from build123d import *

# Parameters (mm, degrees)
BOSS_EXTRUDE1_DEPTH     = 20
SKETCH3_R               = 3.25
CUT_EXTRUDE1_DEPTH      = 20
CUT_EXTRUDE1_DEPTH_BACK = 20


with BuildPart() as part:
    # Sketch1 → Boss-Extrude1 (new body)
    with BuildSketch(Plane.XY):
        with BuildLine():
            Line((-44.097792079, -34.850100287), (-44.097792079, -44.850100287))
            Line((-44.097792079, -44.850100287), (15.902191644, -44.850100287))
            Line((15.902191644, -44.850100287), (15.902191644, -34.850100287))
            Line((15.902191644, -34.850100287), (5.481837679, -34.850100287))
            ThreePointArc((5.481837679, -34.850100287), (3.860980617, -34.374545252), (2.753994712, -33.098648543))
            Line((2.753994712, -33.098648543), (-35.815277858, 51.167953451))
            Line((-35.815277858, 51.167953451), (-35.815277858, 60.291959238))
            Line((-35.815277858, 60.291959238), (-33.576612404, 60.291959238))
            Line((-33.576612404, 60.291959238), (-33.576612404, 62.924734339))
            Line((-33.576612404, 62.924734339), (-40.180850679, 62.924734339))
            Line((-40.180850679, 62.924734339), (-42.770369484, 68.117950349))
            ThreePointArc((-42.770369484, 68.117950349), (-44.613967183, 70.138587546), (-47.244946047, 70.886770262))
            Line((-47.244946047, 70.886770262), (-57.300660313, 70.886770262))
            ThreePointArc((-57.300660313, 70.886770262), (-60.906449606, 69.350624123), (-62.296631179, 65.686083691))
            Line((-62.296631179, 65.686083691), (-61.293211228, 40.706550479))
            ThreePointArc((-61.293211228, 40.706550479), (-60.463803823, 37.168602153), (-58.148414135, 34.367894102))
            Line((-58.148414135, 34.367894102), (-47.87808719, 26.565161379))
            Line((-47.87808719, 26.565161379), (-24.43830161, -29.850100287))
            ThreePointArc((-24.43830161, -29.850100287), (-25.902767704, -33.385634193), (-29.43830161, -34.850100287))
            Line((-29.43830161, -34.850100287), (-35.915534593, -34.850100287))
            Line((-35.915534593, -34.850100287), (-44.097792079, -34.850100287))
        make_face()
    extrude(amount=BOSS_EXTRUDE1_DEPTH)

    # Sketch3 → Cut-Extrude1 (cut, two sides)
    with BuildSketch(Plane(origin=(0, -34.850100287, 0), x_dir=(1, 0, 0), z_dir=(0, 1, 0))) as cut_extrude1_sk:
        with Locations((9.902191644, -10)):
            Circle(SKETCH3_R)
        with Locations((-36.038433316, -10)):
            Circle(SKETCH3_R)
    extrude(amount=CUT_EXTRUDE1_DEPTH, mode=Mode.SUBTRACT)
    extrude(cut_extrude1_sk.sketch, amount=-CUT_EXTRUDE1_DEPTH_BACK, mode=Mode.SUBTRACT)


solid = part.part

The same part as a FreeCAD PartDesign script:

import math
import FreeCAD as App
import Part
import Sketcher
Q = App.Units.Quantity

doc = App.newDocument("Part")
body = doc.addObject("PartDesign::Body", "Body")

# Sketch on XY plane
sketch1 = body.newObject("Sketcher::SketchObject", "Sketch")
sketch1.AttachmentSupport = (doc.getObject("XY_Plane"), [""])
sketch1.MapMode = "FlatFace"
sketch1.addGeometry([
    Part.LineSegment(App.Vector(-44.097792, -34.8501, 0), App.Vector(-44.097792, -44.8501, 0)),  # 0
    Part.LineSegment(App.Vector(-44.097792, -44.8501, 0), App.Vector(15.902192, -44.8501, 0)),  # 1
    Part.LineSegment(App.Vector(15.902192, -44.8501, 0), App.Vector(15.902192, -34.8501, 0)),  # 2
    Part.LineSegment(App.Vector(15.902192, -34.8501, 0), App.Vector(5.481838, -34.8501, 0)),  # 3
    Part.ArcOfCircle(Part.Circle(App.Vector(5.481838, -31.8501, 0), App.Vector(0, 0, 1), 3), math.radians(-155.406178), math.radians(-90)),  # 4
    Part.LineSegment(App.Vector(2.753995, -33.098649, 0), App.Vector(-35.815278, 51.167953, 0)),  # 5
    Part.LineSegment(App.Vector(-35.815278, 51.167953, 0), App.Vector(-35.815278, 60.291959, 0)),  # 6
    Part.LineSegment(App.Vector(-35.815278, 60.291959, 0), App.Vector(-33.576612, 60.291959, 0)),  # 7
    Part.LineSegment(App.Vector(-33.576612, 60.291959, 0), App.Vector(-33.576612, 62.924734, 0)),  # 8
    Part.LineSegment(App.Vector(-33.576612, 62.924734, 0), App.Vector(-40.180851, 62.924734, 0)),  # 9
    Part.LineSegment(App.Vector(-40.180851, 62.924734, 0), App.Vector(-42.770369, 68.11795, 0)),  # 10
    Part.ArcOfCircle(Part.Circle(App.Vector(-47.244946, 65.88677, 0), App.Vector(0, 0, 1), 5), math.radians(26.502446), math.radians(90)),  # 11
    Part.LineSegment(App.Vector(-47.244946, 70.88677, 0), App.Vector(-57.30066, 70.88677, 0)),  # 12
    Part.ArcOfCircle(Part.Circle(App.Vector(-57.30066, 65.88677, 0), App.Vector(0, 0, 1), 5), math.radians(90), math.radians(182.300317)),  # 13
    Part.LineSegment(App.Vector(-62.296631, 65.686084, 0), App.Vector(-61.293211, 40.70655, 0)),  # 14
    Part.ArcOfCircle(Part.Circle(App.Vector(-53.332711, 40.70655, 0), App.Vector(0, 0, 1), 7.9605), math.radians(-180), math.radians(-127.225229)),  # 15
    Part.LineSegment(App.Vector(-58.148414, 34.367894, 0), App.Vector(-47.878087, 26.565161, 0)),  # 16
    Part.LineSegment(App.Vector(-47.878087, 26.565161, 0), App.Vector(-24.438302, -29.8501, 0)),  # 17
    Part.ArcOfCircle(Part.Circle(App.Vector(-29.438302, -29.8501, 0), App.Vector(0, 0, 1), 5), math.radians(-90), math.radians(0)),  # 18
    Part.LineSegment(App.Vector(-29.438302, -34.8501, 0), App.Vector(-44.097792, -34.8501, 0)),  # 19
], False)
sketch1.addConstraint([
    Sketcher.Constraint("Coincident", 0, 2, 1, 1),
    Sketcher.Constraint("Coincident", 1, 2, 2, 1),
    Sketcher.Constraint("Coincident", 2, 2, 3, 1),
    Sketcher.Constraint("Coincident", 3, 2, 4, 2),
    Sketcher.Constraint("Coincident", 4, 1, 5, 1),
    Sketcher.Constraint("Coincident", 5, 2, 6, 1),
    Sketcher.Constraint("Coincident", 6, 2, 7, 1),
    Sketcher.Constraint("Coincident", 7, 2, 8, 1),
    Sketcher.Constraint("Coincident", 8, 2, 9, 1),
    Sketcher.Constraint("Coincident", 9, 2, 10, 1),
    Sketcher.Constraint("Coincident", 10, 2, 11, 1),
    Sketcher.Constraint("Coincident", 11, 2, 12, 1),
    Sketcher.Constraint("Coincident", 12, 2, 13, 1),
    Sketcher.Constraint("Coincident", 13, 2, 14, 1),
    Sketcher.Constraint("Coincident", 14, 2, 15, 1),
    Sketcher.Constraint("Coincident", 15, 2, 16, 1),
    Sketcher.Constraint("Coincident", 16, 2, 17, 1),
    Sketcher.Constraint("Coincident", 17, 2, 18, 2),
    Sketcher.Constraint("Coincident", 18, 1, 19, 1),
    Sketcher.Constraint("Coincident", 19, 2, 0, 1),
    Sketcher.Constraint("Vertical", 0),
    Sketcher.Constraint("Horizontal", 1),
    Sketcher.Constraint("Vertical", 2),
    Sketcher.Constraint("Horizontal", 3),
    Sketcher.Constraint("Vertical", 6),
    Sketcher.Constraint("Horizontal", 7),
    Sketcher.Constraint("Vertical", 8),
    Sketcher.Constraint("Horizontal", 9),
    Sketcher.Constraint("Horizontal", 12),
    Sketcher.Constraint("Horizontal", 19),
    Sketcher.Constraint("Radius", 4, Q("3 mm")),
    Sketcher.Constraint("Radius", 11, Q("5 mm")),
    Sketcher.Constraint("Radius", 13, Q("5 mm")),
    Sketcher.Constraint("Radius", 18, Q("5 mm")),
    Sketcher.Constraint("DistanceY", 0, 2, 0, 1, Q("10 mm")),
    Sketcher.Constraint("DistanceY", 2, 1, 2, 2, Q("10 mm")),
    Sketcher.Constraint("DistanceY", 0, 2, 17, 2, Q("15 mm")),
    Sketcher.Constraint("DistanceX", 18, 1, 17, 2, Q("5 mm")),
    Sketcher.Constraint("Radius", 15, Q("7.9605 mm")),
    Sketcher.Constraint("DistanceX", 9, 2, 9, 1, Q("6.604238 mm")),
    Sketcher.Constraint("DistanceX", 19, 2, 19, 1, Q("14.65949 mm")),
    Sketcher.Constraint("DistanceY", 4, 3, -1, 1, Q("31.8501 mm")),
    Sketcher.Constraint("DistanceX", 18, 3, -1, 1, Q("29.438302 mm")),
    Sketcher.Constraint("DistanceY", 4, 1, 5, 2, Q("84.266602 mm")),
    Sketcher.Constraint("DistanceX", 15, 3, 7, 2, Q("19.756099 mm")),
    Sketcher.Constraint("Distance", 14, Q("24.999679 mm")),
    Sketcher.Constraint("Distance", 16, Q("12.898149 mm")),
    Sketcher.Constraint("Distance", 17, Q("61.090959 mm")),
    Sketcher.Constraint("DistanceX", 1, 1, 1, 2, Q("59.999984 mm")),
    Sketcher.Constraint("DistanceX", 3, 2, 3, 1, Q("10.420354 mm")),
    Sketcher.Constraint("DistanceX", 7, 1, 7, 2, Q("2.238665 mm")),
    Sketcher.Constraint("DistanceX", 12, 2, 12, 1, Q("10.055714 mm")),
    Sketcher.Constraint("DistanceY", 6, 1, 6, 2, Q("9.124006 mm")),
    Sketcher.Constraint("DistanceY", 8, 1, 8, 2, Q("2.632775 mm")),
    Sketcher.Constraint("DistanceY", -1, 1, 11, 3, Q("65.88677 mm")),
    Sketcher.Constraint("DistanceX", 13, 3, -1, 1, Q("57.30066 mm")),
    Sketcher.Constraint("DistanceX", 15, 3, -1, 1, Q("53.332711 mm")),
    Sketcher.Constraint("DistanceY", -1, 1, 15, 3, Q("40.70655 mm")),
    Sketcher.Constraint("DistanceY", 4, 1, -1, 1, Q("33.098649 mm")),
    Sketcher.Constraint("DistanceX", 10, 2, -1, 1, Q("42.770369 mm")),
    Sketcher.Constraint("DistanceY", -1, 1, 10, 2, Q("68.11795 mm")),
    Sketcher.Constraint("DistanceX", 12, 2, -1, 1, Q("57.30066 mm")),
    Sketcher.Constraint("DistanceX", 13, 2, -1, 1, Q("62.296631 mm")),
    Sketcher.Constraint("DistanceY", -1, 1, 16, 2, Q("26.565161 mm")),
    Sketcher.Constraint("DistanceX", 15, 3, 4, 3, Q("58.814549 mm")),
])
pad1 = body.newObject("PartDesign::Pad", "Pad")
pad1.Profile = sketch1
pad1.Length = 20

# Sketch on XZ plane
sketch2 = body.newObject("Sketcher::SketchObject", "Sketch001")
sketch2.AttachmentSupport = (doc.getObject("XZ_Plane"), [""])
sketch2.MapMode = "FlatFace"
sketch2.AttachmentOffset = App.Placement(App.Vector(0, 0, 34.8501), App.Rotation())
sketch2.addGeometry([
    Part.Circle(App.Vector(9.902192, 10, 0), App.Vector(0, 0, 1), 3.25),
    Part.Circle(App.Vector(-36.038433, 10, 0), App.Vector(0, 0, 1), 3.25),
], False)
sketch2.addConstraint([
    Sketcher.Constraint("Equal", 0, 1),
    Sketcher.Constraint("Horizontal", 0, 3, 1, 3),
    Sketcher.Constraint("Diameter", 0, Q("6.5 mm")),
    Sketcher.Constraint("DistanceY", -1, 1, 0, 3, Q("10 mm")),
    Sketcher.Constraint("DistanceX", -1, 1, 0, 3, Q("9.902192 mm")),
    Sketcher.Constraint("DistanceX", 1, 3, -1, 1, Q("36.038433 mm")),
])
pocket1 = body.newObject("PartDesign::Pocket", "Pocket")
pocket1.Profile = sketch2
pocket1.Type = "TwoLengths"
pocket1.Length = 20
pocket1.Length2 = 20

doc.recompute()
